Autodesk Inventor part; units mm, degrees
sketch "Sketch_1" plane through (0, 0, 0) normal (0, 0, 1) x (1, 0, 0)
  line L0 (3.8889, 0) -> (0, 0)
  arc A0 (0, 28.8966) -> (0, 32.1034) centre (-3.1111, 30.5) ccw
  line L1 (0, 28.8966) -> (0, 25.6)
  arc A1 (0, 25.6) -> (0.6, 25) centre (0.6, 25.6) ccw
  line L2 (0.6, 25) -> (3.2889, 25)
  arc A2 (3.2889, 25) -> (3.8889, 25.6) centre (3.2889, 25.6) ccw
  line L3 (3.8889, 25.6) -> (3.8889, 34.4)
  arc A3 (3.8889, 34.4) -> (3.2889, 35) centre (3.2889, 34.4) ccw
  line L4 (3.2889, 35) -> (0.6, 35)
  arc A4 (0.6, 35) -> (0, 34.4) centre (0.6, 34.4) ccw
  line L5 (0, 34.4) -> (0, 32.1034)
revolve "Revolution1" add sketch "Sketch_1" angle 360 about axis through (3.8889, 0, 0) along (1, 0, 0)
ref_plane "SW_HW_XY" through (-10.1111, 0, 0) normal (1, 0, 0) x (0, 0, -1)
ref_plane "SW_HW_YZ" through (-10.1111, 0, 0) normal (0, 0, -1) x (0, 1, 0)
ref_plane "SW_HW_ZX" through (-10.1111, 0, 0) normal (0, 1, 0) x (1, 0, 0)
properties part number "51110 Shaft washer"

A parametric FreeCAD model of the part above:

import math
import FreeCAD as App
import Part
import Sketcher
from FreeCAD import Vector

doc = App.newDocument("Part")
body = doc.addObject("PartDesign::Body", "Body")

# Sketch on XY plane
sketch1 = body.newObject("Sketcher::SketchObject", "Sketch")
sketch1.AttachmentSupport = (doc.getObject("XY_Plane"), [""])
sketch1.MapMode = "FlatFace"
sketch1.addGeometry(Part.ArcOfCircle(Part.Circle(Vector(-3.1, 30.5, 0), Vector(0, 0, 1), 3.5), math.radians(-27), math.radians(27)), False)
sketch1.addGeometry(Part.LineSegment(Vector(0, 28.9, 0), Vector(0, 25.6, 0)), False)
sketch1.addGeometry(Part.ArcOfCircle(Part.Circle(Vector(0.6, 25.6, 0), Vector(0, 0, 1), 0.6), math.radians(180), math.radians(270)), False)
sketch1.addGeometry(Part.LineSegment(Vector(0.6, 25, 0), Vector(3.3, 25, 0)), False)
sketch1.addGeometry(Part.ArcOfCircle(Part.Circle(Vector(3.3, 25.6, 0), Vector(0, 0, 1), 0.6), math.radians(-90), math.radians(0)), False)
sketch1.addGeometry(Part.LineSegment(Vector(3.9, 25.6, 0), Vector(3.9, 34.4, 0)), False)
sketch1.addGeometry(Part.ArcOfCircle(Part.Circle(Vector(3.3, 34.4, 0), Vector(0, 0, 1), 0.6), math.radians(0), math.radians(90)), False)
sketch1.addGeometry(Part.LineSegment(Vector(3.3, 35, 0), Vector(0.6, 35, 0)), False)
sketch1.addGeometry(Part.ArcOfCircle(Part.Circle(Vector(0.6, 34.4, 0), Vector(0, 0, 1), 0.6), math.radians(90), math.radians(180)), False)
sketch1.addGeometry(Part.LineSegment(Vector(0, 34.4, 0), Vector(0, 32.1, 0)), False)
sketch1.addConstraint(Sketcher.Constraint("Coincident", 0, 1, 1, 1))
sketch1.addConstraint(Sketcher.Constraint("Tangent", 1, 2, 2, 1))
sketch1.addConstraint(Sketcher.Constraint("Tangent", 2, 2, 3, 1))
sketch1.addConstraint(Sketcher.Constraint("Tangent", 3, 2, 4, 1))
sketch1.addConstraint(Sketcher.Constraint("Tangent", 4, 2, 5, 1))
sketch1.addConstraint(Sketcher.Constraint("Tangent", 5, 2, 6, 1))
sketch1.addConstraint(Sketcher.Constraint("Tangent", 6, 2, 7, 1))
sketch1.addConstraint(Sketcher.Constraint("Tangent", 7, 2, 8, 1))
sketch1.addConstraint(Sketcher.Constraint("Tangent", 8, 2, 9, 1))
sketch1.addConstraint(Sketcher.Constraint("Coincident", 9, 2, 0, 2))
sketch1.addConstraint(Sketcher.Constraint("Vertical", 1))
sketch1.addConstraint(Sketcher.Constraint("Horizontal", 3))
sketch1.addConstraint(Sketcher.Constraint("Vertical", 5))
sketch1.addConstraint(Sketcher.Constraint("Horizontal", 7))
sketch1.addConstraint(Sketcher.Constraint("Vertical", 9))
sketch1.addConstraint(Sketcher.Constraint("Equal", 2, 4))
sketch1.addConstraint(Sketcher.Constraint("Equal", 4, 6))
sketch1.addConstraint(Sketcher.Constraint("Equal", 6, 8))
sketch1.addConstraint(Sketcher.Constraint("PointOnObject", 0, 1, -2))
sketch1.addConstraint(Sketcher.Constraint("PointOnObject", 8, 2, -2))
sketch1.addConstraint(Sketcher.Constraint("Radius", 0, 3.5))
sketch1.addConstraint(Sketcher.Constraint("Radius", 2, 0.6))
sketch1.addConstraint(Sketcher.Constraint("DistanceY", 5, 1, 5, 2, 8.8))
sketch1.addConstraint(Sketcher.Constraint("DistanceY", -1, 1, 2, 2, 25.0))
sketch1.addConstraint(Sketcher.Constraint("DistanceX", 0, 3, 5, 2, 7.0))
sketch1.addConstraint(Sketcher.Constraint("DistanceY", -1, 1, 0, 3, 30.5))
sketch1.addConstraint(Sketcher.Constraint("DistanceX", 3, 1, 3, 2, 2.689))
revolution = body.newObject("PartDesign::Revolution", "Revolution")
revolution.Profile = sketch1
revolution.ReferenceAxis = (sketch1, ["H_Axis"])
revolution.Angle = 360

doc.recompute()
